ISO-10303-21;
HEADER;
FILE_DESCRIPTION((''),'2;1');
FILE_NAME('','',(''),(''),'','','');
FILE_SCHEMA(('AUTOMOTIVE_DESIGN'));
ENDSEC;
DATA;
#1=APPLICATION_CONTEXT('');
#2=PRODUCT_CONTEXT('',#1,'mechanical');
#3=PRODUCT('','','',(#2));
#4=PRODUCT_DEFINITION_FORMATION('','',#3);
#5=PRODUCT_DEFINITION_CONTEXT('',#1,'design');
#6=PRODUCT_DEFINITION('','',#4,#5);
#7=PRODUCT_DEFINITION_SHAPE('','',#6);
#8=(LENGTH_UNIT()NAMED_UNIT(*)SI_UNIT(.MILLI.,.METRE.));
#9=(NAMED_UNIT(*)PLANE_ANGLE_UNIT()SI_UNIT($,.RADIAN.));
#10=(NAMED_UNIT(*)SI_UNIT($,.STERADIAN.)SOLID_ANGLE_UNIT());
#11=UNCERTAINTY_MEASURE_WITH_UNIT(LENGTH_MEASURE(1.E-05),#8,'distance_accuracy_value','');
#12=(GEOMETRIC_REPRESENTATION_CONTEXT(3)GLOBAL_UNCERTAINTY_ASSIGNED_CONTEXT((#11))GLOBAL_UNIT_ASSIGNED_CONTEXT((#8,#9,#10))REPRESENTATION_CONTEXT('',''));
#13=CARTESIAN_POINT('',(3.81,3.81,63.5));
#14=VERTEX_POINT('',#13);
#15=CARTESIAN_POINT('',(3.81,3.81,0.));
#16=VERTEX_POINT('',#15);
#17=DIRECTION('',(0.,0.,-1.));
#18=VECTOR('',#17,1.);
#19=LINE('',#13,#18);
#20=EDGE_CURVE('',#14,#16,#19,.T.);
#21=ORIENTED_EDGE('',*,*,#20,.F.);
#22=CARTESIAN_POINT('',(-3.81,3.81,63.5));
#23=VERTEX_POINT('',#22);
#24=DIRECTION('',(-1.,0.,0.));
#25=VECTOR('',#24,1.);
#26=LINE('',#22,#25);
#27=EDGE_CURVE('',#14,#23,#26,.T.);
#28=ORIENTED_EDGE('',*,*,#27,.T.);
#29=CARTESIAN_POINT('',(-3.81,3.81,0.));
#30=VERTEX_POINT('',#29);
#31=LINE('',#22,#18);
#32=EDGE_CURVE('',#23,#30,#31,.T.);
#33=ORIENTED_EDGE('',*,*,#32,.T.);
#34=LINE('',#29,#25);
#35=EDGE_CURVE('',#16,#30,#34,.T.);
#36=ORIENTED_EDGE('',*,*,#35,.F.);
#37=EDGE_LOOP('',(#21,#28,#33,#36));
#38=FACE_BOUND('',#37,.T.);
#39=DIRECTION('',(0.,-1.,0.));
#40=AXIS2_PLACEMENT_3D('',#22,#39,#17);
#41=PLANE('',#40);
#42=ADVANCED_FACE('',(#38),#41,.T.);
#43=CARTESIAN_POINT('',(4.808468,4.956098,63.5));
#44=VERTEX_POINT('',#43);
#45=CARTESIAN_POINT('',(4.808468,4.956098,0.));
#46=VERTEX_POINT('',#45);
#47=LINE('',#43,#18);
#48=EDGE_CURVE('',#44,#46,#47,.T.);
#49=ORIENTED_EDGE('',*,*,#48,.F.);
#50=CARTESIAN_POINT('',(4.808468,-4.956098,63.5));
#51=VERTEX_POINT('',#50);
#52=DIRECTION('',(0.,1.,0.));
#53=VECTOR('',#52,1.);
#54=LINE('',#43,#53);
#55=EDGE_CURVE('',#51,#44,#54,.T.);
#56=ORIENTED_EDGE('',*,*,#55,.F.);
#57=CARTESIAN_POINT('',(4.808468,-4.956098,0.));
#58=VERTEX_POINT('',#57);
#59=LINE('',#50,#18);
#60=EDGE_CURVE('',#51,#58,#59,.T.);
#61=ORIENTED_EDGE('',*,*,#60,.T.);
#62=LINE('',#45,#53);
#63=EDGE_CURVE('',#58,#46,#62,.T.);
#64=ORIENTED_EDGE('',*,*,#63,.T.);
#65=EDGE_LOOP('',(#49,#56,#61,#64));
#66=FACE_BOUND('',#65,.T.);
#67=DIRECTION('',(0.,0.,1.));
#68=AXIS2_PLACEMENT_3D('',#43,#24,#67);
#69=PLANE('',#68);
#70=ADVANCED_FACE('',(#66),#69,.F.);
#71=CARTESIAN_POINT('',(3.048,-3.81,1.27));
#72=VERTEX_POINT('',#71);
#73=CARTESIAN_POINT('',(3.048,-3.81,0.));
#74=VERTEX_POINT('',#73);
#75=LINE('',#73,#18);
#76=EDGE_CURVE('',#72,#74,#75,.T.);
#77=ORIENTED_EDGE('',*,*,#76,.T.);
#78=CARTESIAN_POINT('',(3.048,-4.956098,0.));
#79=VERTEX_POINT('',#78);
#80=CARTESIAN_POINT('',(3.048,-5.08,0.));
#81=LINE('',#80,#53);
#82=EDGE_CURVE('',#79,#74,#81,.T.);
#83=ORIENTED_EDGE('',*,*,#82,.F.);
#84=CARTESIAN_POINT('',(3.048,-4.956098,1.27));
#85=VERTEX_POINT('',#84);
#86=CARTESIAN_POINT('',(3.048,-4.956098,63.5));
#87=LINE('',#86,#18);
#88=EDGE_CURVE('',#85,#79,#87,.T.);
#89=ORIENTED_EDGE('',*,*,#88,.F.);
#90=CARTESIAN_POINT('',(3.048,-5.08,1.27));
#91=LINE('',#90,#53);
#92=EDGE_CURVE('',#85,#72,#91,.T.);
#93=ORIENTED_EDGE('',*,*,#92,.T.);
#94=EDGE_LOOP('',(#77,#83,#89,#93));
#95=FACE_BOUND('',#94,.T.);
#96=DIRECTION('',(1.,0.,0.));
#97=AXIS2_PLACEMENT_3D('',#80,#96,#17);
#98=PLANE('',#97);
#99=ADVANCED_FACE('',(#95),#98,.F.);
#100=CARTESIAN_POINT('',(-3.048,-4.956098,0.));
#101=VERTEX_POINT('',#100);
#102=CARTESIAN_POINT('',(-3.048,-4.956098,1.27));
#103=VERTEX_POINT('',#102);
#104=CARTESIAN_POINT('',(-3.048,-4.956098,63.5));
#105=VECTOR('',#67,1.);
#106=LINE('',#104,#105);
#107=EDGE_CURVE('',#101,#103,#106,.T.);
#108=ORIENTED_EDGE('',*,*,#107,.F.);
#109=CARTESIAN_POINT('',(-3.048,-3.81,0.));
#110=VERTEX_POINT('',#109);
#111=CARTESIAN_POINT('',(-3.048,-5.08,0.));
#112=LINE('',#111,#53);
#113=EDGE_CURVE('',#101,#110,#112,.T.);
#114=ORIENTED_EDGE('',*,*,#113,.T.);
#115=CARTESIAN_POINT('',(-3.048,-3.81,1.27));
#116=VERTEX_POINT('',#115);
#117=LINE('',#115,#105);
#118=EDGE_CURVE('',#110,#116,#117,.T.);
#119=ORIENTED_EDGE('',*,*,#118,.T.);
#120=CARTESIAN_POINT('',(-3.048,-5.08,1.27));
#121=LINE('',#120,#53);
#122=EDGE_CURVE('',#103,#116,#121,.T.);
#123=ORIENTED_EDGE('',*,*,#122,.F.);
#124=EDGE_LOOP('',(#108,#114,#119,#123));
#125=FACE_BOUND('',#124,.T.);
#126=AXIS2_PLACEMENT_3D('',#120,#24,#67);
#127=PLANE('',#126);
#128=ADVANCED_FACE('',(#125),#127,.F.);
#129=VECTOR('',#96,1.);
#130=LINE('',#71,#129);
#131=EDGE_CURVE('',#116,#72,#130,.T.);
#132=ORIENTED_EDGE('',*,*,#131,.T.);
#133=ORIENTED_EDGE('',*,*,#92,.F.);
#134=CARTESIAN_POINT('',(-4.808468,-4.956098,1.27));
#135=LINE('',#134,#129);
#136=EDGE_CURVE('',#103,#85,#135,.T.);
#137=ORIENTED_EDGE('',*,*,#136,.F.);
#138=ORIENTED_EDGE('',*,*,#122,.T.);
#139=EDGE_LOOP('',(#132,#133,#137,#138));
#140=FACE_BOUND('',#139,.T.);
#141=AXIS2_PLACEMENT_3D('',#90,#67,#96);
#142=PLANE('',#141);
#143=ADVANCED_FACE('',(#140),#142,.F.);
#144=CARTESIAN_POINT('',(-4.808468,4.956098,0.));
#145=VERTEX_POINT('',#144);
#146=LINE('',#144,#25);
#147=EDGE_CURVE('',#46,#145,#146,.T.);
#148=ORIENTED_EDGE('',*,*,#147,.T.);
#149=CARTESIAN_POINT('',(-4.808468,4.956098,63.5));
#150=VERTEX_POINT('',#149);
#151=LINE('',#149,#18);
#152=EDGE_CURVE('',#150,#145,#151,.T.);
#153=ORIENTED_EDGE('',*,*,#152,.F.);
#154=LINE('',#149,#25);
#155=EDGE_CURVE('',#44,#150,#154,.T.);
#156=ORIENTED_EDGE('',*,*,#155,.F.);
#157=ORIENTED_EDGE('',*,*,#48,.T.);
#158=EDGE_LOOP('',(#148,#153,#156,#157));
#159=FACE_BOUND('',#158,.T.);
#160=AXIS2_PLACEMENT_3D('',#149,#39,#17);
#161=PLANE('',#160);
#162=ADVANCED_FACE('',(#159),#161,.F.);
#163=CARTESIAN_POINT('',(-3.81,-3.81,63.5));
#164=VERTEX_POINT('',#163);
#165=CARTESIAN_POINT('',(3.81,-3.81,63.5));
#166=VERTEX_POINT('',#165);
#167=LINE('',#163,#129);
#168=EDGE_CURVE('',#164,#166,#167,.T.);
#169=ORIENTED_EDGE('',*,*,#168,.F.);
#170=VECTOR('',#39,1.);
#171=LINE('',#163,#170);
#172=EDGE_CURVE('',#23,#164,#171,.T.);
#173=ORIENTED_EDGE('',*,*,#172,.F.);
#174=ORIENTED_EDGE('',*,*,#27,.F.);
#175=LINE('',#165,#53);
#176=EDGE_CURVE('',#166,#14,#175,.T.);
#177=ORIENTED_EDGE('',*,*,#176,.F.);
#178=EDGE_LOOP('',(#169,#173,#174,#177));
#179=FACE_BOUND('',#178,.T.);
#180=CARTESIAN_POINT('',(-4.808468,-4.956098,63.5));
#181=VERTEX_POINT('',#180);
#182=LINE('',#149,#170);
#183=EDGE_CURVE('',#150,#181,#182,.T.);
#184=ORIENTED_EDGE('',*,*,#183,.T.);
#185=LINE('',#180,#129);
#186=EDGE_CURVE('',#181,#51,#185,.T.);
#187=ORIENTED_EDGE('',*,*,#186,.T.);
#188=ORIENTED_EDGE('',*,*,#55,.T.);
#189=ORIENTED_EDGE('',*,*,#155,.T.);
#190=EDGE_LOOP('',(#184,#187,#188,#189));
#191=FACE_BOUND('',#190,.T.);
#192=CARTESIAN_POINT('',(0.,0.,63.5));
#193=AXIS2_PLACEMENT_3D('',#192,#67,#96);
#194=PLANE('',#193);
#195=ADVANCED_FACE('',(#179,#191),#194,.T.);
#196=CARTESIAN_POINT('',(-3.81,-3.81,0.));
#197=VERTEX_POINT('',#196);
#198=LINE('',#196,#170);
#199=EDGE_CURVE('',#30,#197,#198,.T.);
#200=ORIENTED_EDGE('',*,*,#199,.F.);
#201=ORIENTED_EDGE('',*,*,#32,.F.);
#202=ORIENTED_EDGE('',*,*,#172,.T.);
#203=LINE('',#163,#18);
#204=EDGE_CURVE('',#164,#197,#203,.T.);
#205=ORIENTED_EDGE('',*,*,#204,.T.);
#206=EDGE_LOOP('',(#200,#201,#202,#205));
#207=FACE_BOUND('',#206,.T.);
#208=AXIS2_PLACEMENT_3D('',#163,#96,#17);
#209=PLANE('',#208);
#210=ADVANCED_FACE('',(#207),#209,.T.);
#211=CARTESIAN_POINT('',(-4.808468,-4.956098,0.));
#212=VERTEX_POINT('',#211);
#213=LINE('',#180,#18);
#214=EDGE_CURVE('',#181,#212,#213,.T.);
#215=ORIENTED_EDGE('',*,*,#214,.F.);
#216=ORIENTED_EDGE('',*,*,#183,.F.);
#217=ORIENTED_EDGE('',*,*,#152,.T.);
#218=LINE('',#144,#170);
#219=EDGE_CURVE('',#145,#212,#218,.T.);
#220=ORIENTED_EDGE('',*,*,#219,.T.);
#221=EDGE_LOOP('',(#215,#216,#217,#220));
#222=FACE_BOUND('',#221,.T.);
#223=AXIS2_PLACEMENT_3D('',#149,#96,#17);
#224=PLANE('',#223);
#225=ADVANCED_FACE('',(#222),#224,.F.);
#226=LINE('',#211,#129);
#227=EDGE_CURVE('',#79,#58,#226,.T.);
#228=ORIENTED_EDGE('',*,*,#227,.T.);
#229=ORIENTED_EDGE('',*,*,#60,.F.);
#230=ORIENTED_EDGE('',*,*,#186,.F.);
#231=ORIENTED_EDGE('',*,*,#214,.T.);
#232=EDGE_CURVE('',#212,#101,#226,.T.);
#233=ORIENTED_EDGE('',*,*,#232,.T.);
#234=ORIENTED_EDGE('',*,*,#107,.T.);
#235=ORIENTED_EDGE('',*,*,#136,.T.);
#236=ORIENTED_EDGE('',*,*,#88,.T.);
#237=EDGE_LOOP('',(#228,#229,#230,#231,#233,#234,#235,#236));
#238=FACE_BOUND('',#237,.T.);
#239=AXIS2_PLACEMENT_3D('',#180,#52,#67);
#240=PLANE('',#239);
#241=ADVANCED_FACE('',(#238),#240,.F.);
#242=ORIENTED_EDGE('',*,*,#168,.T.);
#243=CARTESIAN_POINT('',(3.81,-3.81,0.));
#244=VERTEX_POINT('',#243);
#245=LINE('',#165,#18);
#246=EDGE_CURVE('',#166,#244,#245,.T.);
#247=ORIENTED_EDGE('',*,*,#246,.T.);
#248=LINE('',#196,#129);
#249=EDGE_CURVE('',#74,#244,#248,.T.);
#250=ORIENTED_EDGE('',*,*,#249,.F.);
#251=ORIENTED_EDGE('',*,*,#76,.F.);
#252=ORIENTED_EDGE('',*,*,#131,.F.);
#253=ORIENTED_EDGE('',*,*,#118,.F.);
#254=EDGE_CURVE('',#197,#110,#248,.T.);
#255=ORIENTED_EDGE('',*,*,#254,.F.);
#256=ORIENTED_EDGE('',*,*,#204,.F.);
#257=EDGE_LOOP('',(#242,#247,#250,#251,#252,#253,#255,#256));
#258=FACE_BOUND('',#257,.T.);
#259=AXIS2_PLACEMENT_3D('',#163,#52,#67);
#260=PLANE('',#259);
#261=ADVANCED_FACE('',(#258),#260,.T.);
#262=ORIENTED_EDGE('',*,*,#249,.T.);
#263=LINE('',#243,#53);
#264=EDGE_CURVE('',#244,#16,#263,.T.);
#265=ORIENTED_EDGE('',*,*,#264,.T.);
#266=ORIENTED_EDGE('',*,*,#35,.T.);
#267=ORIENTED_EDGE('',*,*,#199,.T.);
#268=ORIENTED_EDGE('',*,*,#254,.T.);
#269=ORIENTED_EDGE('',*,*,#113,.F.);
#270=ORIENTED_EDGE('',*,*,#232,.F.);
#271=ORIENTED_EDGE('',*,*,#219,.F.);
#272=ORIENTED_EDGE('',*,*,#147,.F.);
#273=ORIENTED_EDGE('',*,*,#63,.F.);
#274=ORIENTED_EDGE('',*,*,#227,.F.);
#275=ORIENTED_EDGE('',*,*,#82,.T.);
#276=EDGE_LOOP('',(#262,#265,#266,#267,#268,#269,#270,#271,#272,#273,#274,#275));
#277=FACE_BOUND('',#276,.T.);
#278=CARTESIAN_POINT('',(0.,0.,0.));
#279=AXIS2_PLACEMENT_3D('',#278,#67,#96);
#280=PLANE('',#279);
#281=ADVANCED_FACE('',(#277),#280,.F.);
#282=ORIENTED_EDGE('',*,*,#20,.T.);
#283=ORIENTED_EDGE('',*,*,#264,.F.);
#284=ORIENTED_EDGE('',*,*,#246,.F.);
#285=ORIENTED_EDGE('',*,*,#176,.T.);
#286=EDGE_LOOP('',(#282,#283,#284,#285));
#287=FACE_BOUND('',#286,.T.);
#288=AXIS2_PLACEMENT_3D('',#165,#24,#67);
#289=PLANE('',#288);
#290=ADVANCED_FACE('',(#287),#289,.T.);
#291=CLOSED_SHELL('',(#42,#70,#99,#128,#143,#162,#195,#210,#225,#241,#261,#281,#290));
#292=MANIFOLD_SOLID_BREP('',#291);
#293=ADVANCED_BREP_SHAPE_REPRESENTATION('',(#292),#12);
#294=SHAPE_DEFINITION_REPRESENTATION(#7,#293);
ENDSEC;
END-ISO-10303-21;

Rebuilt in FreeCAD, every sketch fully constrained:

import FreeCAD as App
import Part
import Sketcher

V = App.Vector
Q = App.Units.Quantity

doc = App.newDocument("Part")
params = doc.addObject("Spreadsheet::Sheet", "Params")
for row, (alias, value) in enumerate([
    ("sketch1_width", "0.3 in"),
    ("pad1_length", "2.5 in"),
    ("sketch2_width", "0.24 in"),
    ("sketch2_height", "0.05 in"),
    ("pocket1_length", "0.05 in"),
], start=1):
    params.set(f"A{row}", alias)
    params.set(f"B{row}", "=" + value)
    params.setAlias(f"B{row}", alias)

body = doc.addObject("PartDesign::Body", "Body")

sketch1 = body.newObject("Sketcher::SketchObject", "Sketch")
sketch1.AttachmentSupport = (doc.getObject("XY_Plane"), [""])
sketch1.MapMode = "FlatFace"
sketch1.addGeometry([
    Part.LineSegment(V(-5, 5, 0), V(-5, -5, 0)),
    Part.LineSegment(V(-5, -5, 0), V(5, -5, 0)),
    Part.LineSegment(V(5, -5, 0), V(5, 5, 0)),
    Part.LineSegment(V(5, 5, 0), V(-5, 5, 0)),
    Part.LineSegment(V(4, -4, 0), V(-4, -4, 0)),
    Part.LineSegment(V(-4, -4, 0), V(-4, 4, 0)),
    Part.LineSegment(V(-4, 4, 0), V(4, 4, 0)),
    Part.LineSegment(V(4, 4, 0), V(4, -4, 0)),
], False)
sketch1.addConstraint([
    Sketcher.Constraint("Coincident", 0, 2, 1, 1),
    Sketcher.Constraint("Coincident", 1, 2, 2, 1),
    Sketcher.Constraint("Coincident", 2, 2, 3, 1),
    Sketcher.Constraint("Coincident", 3, 2, 0, 1),
    Sketcher.Constraint("Coincident", 4, 2, 5, 1),
    Sketcher.Constraint("Coincident", 5, 2, 6, 1),
    Sketcher.Constraint("Coincident", 6, 2, 7, 1),
    Sketcher.Constraint("Coincident", 7, 2, 4, 1),
    Sketcher.Constraint("Vertical", 0),
    Sketcher.Constraint("Horizontal", 1),
    Sketcher.Constraint("Vertical", 2),
    Sketcher.Constraint("Horizontal", 3),
    Sketcher.Constraint("Horizontal", 4),
    Sketcher.Constraint("Vertical", 5),
    Sketcher.Constraint("Horizontal", 6),
    Sketcher.Constraint("Vertical", 7),
    Sketcher.Constraint("Symmetric", 0, 2, 2, 2, -1, 1),
    Sketcher.Constraint("Symmetric", 4, 2, 6, 2, -1, 1),
    Sketcher.Constraint("Equal", 6, 5),
    Sketcher.Constraint("DistanceX", 4, 2, 4, 1, Q("0.3 in")),
    Sketcher.Constraint("DistanceX", 1, 1, 1, 2, Q("9.616936 mm")),
    Sketcher.Constraint("DistanceY", 0, 2, 0, 1, Q("9.912195 mm")),
])
sketch1.setExpression("Constraints[19]", "Params.sketch1_width")
pad1 = body.newObject("PartDesign::Pad", "Pad")
pad1.Profile = sketch1
pad1.setExpression("Length", "Params.pad1_length")

sketch2 = body.newObject("Sketcher::SketchObject", "Sketch001")
sketch2.AttachmentSupport = (doc.getObject("XZ_Plane"), [""])
sketch2.MapMode = "FlatFace"
sketch2.AttachmentOffset = App.Placement(V(0, 0, 0.15 * 25.4), App.Rotation())
sketch2.addGeometry([
    Part.LineSegment(V(-3, 0, 0), V(-3, 1.3, 0)),
    Part.LineSegment(V(-3, 1.3, 0), V(3, 1.3, 0)),
    Part.LineSegment(V(3, 1.3, 0), V(3, 0, 0)),
    Part.LineSegment(V(3, 0, 0), V(-3, 0, 0)),
], False)
sketch2.addConstraint([
    Sketcher.Constraint("Coincident", 0, 2, 1, 1),
    Sketcher.Constraint("Coincident", 1, 2, 2, 1),
    Sketcher.Constraint("Coincident", 2, 2, 3, 1),
    Sketcher.Constraint("Coincident", 3, 2, 0, 1),
    Sketcher.Constraint("Vertical", 0),
    Sketcher.Constraint("Horizontal", 1),
    Sketcher.Constraint("Vertical", 2),
    Sketcher.Constraint("Horizontal", 3),
    Sketcher.Constraint("Symmetric", 2, 2, 3, 2, -1, 1),
    Sketcher.Constraint("DistanceX", 1, 1, 1, 2, Q("0.24 in")),
    Sketcher.Constraint("DistanceY", 0, 1, 0, 2, Q("0.05 in")),
])
sketch2.setExpression("Constraints[9]", "Params.sketch2_width")
sketch2.setExpression("Constraints[10]", "Params.sketch2_height")
pocket1 = body.newObject("PartDesign::Pocket", "Pocket")
pocket1.Profile = sketch2
pocket1.setExpression("Length", "Params.pocket1_length")
pocket1.Reversed = True

doc.recompute()
